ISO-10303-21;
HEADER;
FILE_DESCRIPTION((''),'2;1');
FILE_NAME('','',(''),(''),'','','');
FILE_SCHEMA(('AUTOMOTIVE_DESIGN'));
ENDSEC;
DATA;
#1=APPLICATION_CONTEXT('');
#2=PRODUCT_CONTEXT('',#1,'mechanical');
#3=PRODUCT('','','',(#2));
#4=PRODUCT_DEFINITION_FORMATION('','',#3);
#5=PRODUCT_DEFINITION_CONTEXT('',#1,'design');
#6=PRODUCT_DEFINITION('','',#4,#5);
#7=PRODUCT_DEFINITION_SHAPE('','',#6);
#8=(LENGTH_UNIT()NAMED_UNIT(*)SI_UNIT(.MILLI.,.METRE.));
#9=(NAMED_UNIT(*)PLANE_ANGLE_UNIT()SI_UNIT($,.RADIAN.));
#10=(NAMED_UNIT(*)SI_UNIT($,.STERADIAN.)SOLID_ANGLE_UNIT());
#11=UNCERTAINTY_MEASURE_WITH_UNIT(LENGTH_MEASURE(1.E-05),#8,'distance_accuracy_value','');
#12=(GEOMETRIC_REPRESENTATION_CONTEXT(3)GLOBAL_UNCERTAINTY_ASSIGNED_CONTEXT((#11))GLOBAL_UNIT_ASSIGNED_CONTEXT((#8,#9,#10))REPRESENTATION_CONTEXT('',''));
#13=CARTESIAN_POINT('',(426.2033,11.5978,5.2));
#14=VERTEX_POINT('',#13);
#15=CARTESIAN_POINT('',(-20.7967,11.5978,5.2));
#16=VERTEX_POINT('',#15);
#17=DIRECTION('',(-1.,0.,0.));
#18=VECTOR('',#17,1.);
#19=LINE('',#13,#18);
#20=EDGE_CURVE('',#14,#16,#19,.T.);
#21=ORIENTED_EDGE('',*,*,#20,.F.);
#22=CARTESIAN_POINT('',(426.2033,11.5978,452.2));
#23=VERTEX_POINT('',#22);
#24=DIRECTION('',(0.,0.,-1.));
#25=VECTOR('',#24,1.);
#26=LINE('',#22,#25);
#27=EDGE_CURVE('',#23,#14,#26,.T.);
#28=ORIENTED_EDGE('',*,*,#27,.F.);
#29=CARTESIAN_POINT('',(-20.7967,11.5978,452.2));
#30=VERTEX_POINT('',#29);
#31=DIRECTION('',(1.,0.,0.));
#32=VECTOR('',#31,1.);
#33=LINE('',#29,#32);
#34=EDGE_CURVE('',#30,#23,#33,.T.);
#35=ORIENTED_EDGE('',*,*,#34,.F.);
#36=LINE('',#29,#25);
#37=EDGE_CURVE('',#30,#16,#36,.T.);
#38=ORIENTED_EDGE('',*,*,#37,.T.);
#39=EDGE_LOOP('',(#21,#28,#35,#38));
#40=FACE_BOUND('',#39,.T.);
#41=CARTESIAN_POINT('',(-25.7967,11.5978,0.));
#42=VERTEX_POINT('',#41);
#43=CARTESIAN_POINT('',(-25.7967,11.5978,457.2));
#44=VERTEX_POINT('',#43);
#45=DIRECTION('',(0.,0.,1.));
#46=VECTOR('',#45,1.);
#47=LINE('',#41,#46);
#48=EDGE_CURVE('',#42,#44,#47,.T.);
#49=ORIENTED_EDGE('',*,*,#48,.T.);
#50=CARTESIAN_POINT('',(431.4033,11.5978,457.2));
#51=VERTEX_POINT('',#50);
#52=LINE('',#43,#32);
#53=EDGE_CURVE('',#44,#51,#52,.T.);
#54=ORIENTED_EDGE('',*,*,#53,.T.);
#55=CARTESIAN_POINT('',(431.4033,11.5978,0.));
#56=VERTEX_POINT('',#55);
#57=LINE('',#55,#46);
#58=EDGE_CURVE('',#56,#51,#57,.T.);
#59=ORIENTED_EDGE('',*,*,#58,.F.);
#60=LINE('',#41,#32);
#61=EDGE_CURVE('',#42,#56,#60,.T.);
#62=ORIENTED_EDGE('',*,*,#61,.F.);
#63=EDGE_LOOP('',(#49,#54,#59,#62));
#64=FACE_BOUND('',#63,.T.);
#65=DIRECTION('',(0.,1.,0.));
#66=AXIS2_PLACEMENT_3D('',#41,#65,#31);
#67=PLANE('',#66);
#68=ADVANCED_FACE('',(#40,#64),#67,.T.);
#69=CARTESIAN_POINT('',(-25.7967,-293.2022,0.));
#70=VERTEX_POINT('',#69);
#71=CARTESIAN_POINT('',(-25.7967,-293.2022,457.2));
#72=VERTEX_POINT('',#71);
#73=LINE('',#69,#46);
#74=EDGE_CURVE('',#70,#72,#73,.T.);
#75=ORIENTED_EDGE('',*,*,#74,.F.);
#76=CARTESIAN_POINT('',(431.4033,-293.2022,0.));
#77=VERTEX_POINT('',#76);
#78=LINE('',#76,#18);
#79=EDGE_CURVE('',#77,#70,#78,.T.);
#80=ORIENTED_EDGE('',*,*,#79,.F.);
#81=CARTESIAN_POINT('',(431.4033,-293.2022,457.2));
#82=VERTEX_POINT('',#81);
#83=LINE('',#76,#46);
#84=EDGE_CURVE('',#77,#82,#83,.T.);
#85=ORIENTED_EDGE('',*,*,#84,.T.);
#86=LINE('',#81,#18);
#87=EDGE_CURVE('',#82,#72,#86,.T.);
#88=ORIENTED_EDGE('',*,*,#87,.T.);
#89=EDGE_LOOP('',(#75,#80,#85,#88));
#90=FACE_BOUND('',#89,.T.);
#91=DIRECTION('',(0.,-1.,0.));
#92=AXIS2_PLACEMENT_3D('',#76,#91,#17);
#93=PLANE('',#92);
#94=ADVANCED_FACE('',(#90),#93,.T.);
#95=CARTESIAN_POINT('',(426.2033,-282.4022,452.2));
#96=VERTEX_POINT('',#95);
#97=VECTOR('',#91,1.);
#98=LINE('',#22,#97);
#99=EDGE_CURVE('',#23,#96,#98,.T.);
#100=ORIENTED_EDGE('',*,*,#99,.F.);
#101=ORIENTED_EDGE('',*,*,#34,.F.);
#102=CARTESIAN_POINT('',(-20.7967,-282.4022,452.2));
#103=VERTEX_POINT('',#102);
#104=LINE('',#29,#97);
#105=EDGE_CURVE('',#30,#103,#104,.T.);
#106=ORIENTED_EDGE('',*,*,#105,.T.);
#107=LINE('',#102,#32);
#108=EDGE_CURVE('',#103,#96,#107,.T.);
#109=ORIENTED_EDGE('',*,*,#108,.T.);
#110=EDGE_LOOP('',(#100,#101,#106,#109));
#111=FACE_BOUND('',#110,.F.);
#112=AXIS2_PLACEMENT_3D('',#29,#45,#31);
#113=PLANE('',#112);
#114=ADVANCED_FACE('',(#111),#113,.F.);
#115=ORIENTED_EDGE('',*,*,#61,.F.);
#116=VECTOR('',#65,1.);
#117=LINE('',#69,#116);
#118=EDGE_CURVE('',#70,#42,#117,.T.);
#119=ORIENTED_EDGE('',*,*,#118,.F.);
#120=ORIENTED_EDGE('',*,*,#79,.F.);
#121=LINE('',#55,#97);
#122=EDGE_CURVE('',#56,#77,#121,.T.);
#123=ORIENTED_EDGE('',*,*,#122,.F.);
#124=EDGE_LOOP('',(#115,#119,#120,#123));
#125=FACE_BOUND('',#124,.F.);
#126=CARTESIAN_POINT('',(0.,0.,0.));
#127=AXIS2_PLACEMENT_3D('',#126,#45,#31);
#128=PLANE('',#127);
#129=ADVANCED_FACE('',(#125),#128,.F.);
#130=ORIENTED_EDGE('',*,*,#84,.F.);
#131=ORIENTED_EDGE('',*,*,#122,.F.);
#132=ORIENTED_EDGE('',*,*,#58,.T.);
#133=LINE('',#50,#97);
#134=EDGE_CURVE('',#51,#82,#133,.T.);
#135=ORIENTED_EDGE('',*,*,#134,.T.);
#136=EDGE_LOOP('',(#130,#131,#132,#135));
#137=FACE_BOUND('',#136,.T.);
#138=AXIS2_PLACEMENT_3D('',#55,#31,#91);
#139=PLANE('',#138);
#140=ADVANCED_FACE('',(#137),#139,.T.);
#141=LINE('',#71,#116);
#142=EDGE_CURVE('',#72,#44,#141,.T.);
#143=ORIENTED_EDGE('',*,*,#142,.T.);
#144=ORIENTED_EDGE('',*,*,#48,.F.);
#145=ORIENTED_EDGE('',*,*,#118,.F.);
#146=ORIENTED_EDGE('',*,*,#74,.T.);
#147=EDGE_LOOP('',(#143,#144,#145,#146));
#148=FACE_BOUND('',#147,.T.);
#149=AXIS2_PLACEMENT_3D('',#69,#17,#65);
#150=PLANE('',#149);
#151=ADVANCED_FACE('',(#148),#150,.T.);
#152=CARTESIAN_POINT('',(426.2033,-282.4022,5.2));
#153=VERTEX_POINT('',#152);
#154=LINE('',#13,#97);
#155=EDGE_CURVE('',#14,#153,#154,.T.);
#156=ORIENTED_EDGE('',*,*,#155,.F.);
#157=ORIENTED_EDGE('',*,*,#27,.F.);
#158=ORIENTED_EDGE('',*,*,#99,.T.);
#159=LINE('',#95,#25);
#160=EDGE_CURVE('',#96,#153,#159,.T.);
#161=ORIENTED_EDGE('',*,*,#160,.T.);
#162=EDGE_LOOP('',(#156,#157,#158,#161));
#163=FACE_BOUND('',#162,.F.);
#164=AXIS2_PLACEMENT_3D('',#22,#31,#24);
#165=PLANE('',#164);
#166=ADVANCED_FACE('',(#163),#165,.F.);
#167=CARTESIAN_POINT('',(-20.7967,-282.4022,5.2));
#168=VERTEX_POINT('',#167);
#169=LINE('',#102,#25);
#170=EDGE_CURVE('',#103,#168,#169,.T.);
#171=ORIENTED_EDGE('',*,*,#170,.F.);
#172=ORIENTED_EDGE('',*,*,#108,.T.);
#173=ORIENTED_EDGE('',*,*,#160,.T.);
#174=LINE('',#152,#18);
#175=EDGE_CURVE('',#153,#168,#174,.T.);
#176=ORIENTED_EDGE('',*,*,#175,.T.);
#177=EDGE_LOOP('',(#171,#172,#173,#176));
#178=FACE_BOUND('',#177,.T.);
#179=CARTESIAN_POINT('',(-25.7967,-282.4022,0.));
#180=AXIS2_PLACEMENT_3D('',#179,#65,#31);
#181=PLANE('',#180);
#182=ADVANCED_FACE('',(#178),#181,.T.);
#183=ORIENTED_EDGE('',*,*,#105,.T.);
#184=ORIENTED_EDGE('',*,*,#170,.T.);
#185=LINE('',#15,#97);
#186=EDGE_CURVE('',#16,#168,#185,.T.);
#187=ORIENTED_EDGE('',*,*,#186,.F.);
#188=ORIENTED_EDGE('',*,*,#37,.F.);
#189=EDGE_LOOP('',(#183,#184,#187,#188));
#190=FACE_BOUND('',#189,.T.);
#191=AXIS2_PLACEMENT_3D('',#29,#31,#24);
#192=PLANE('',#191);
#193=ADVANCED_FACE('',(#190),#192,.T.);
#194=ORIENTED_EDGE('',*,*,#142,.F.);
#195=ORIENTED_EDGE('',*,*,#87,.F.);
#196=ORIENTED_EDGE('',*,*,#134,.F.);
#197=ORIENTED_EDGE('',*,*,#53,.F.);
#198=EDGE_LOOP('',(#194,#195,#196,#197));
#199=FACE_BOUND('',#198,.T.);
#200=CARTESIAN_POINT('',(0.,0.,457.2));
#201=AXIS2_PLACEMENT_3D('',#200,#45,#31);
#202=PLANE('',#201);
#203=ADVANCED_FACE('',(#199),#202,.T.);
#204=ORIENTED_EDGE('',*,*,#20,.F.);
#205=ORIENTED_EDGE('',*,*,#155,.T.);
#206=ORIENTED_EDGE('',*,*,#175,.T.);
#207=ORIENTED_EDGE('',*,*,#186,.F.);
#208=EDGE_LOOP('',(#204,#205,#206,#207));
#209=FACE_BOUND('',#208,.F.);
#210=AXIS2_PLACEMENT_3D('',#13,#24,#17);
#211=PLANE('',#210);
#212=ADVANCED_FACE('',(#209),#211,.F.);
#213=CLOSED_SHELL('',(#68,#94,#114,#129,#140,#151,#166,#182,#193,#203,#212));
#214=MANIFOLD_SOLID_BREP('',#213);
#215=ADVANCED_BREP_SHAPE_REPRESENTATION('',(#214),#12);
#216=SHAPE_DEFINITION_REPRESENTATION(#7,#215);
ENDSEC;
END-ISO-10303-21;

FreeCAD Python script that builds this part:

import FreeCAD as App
import Part
import Sketcher

V = App.Vector
Q = App.Units.Quantity

doc = App.newDocument("Part")
params = doc.addObject("Spreadsheet::Sheet", "Params")
for row, (alias, value) in enumerate([
    ("sketch1_width", "18 in"),
    ("sketch1_height", "12 in"),
    ("pad1_length", "18 in"),
    ("pocket1_length", "11.5748031 in"),
], start=1):
    params.set(f"A{row}", alias)
    params.set(f"B{row}", "=" + value)
    params.setAlias(f"B{row}", alias)

body = doc.addObject("PartDesign::Body", "Body")

# Sketch on XY plane
sketch1 = body.newObject("Sketcher::SketchObject", "Sketch")
sketch1.AttachmentSupport = (doc.getObject("XY_Plane"), [""])
sketch1.MapMode = "FlatFace"
sketch1.addGeometry(Part.LineSegment(V(431, 12, 0), V(-26, 12, 0)), False)
sketch1.addGeometry(Part.LineSegment(V(-26, 12, 0), V(-26, -293, 0)), False)
sketch1.addGeometry(Part.LineSegment(V(-26, -293, 0), V(431, -293, 0)), False)
sketch1.addGeometry(Part.LineSegment(V(431, -293, 0), V(431, 12, 0)), False)
sketch1.addConstraint(Sketcher.Constraint("Coincident", 0, 2, 1, 1))
sketch1.addConstraint(Sketcher.Constraint("Coincident", 1, 2, 2, 1))
sketch1.addConstraint(Sketcher.Constraint("Coincident", 2, 2, 3, 1))
sketch1.addConstraint(Sketcher.Constraint("Coincident", 3, 2, 0, 1))
sketch1.addConstraint(Sketcher.Constraint("Horizontal", 0))
sketch1.addConstraint(Sketcher.Constraint("Vertical", 1))
sketch1.addConstraint(Sketcher.Constraint("Horizontal", 2))
sketch1.addConstraint(Sketcher.Constraint("Vertical", 3))
sketch1.addConstraint(Sketcher.Constraint("DistanceX", 0, 2, 0, 1, Q("18 in")))
sketch1.addConstraint(Sketcher.Constraint("DistanceY", 1, 2, 1, 1, Q("12 in")))
sketch1.addConstraint(Sketcher.Constraint("DistanceX", 0, 2, -1, 1, Q("1.0156181 in")))
sketch1.addConstraint(Sketcher.Constraint("DistanceY", -1, 1, 0, 2, Q("0.4566 in")))
sketch1.setExpression("Constraints[8]", "Params.sketch1_width")
sketch1.setExpression("Constraints[9]", "Params.sketch1_height")
pad1 = body.newObject("PartDesign::Pad", "Pad")
pad1.Profile = sketch1
pad1.setExpression("Length", "Params.pad1_length")

# Sketch on XZ plane
sketch2 = body.newObject("Sketcher::SketchObject", "Sketch001")
sketch2.AttachmentSupport = (doc.getObject("XZ_Plane"), [""])
sketch2.MapMode = "FlatFace"
sketch2.AttachmentOffset = App.Placement(V(0, 0, -0.4566063 * 25.4), App.Rotation())
sketch2.addGeometry(Part.LineSegment(V(-21, 5, 0), V(-21, 452, 0)), False)
sketch2.addGeometry(Part.LineSegment(V(-21, 452, 0), V(426, 452, 0)), False)
sketch2.addGeometry(Part.LineSegment(V(426, 452, 0), V(426, 5, 0)), False)
sketch2.addGeometry(Part.LineSegment(V(426, 5, 0), V(-21, 5, 0)), False)
sketch2.addConstraint(Sketcher.Constraint("Coincident", 0, 2, 1, 1))
sketch2.addConstraint(Sketcher.Constraint("Coincident", 1, 2, 2, 1))
sketch2.addConstraint(Sketcher.Constraint("Coincident", 2, 2, 3, 1))
sketch2.addConstraint(Sketcher.Constraint("Coincident", 3, 2, 0, 1))
sketch2.addConstraint(Sketcher.Constraint("Vertical", 0))
sketch2.addConstraint(Sketcher.Constraint("Horizontal", 1))
sketch2.addConstraint(Sketcher.Constraint("Vertical", 2))
sketch2.addConstraint(Sketcher.Constraint("Horizontal", 3))
sketch2.addConstraint(Sketcher.Constraint("Equal", 3, 0))
sketch2.addConstraint(Sketcher.Constraint("DistanceX", 1, 1, 1, 2, 447.0))
sketch2.addConstraint(Sketcher.Constraint("DistanceX", 0, 2, -1, 1, 20.7967))
sketch2.addConstraint(Sketcher.Constraint("DistanceY", -1, 1, 0, 2, 452.2))
pocket1 = body.newObject("PartDesign::Pocket", "Pocket")
pocket1.Profile = sketch2
pocket1.setExpression("Length", "Params.pocket1_length")
pocket1.Reversed = True

doc.recompute()
